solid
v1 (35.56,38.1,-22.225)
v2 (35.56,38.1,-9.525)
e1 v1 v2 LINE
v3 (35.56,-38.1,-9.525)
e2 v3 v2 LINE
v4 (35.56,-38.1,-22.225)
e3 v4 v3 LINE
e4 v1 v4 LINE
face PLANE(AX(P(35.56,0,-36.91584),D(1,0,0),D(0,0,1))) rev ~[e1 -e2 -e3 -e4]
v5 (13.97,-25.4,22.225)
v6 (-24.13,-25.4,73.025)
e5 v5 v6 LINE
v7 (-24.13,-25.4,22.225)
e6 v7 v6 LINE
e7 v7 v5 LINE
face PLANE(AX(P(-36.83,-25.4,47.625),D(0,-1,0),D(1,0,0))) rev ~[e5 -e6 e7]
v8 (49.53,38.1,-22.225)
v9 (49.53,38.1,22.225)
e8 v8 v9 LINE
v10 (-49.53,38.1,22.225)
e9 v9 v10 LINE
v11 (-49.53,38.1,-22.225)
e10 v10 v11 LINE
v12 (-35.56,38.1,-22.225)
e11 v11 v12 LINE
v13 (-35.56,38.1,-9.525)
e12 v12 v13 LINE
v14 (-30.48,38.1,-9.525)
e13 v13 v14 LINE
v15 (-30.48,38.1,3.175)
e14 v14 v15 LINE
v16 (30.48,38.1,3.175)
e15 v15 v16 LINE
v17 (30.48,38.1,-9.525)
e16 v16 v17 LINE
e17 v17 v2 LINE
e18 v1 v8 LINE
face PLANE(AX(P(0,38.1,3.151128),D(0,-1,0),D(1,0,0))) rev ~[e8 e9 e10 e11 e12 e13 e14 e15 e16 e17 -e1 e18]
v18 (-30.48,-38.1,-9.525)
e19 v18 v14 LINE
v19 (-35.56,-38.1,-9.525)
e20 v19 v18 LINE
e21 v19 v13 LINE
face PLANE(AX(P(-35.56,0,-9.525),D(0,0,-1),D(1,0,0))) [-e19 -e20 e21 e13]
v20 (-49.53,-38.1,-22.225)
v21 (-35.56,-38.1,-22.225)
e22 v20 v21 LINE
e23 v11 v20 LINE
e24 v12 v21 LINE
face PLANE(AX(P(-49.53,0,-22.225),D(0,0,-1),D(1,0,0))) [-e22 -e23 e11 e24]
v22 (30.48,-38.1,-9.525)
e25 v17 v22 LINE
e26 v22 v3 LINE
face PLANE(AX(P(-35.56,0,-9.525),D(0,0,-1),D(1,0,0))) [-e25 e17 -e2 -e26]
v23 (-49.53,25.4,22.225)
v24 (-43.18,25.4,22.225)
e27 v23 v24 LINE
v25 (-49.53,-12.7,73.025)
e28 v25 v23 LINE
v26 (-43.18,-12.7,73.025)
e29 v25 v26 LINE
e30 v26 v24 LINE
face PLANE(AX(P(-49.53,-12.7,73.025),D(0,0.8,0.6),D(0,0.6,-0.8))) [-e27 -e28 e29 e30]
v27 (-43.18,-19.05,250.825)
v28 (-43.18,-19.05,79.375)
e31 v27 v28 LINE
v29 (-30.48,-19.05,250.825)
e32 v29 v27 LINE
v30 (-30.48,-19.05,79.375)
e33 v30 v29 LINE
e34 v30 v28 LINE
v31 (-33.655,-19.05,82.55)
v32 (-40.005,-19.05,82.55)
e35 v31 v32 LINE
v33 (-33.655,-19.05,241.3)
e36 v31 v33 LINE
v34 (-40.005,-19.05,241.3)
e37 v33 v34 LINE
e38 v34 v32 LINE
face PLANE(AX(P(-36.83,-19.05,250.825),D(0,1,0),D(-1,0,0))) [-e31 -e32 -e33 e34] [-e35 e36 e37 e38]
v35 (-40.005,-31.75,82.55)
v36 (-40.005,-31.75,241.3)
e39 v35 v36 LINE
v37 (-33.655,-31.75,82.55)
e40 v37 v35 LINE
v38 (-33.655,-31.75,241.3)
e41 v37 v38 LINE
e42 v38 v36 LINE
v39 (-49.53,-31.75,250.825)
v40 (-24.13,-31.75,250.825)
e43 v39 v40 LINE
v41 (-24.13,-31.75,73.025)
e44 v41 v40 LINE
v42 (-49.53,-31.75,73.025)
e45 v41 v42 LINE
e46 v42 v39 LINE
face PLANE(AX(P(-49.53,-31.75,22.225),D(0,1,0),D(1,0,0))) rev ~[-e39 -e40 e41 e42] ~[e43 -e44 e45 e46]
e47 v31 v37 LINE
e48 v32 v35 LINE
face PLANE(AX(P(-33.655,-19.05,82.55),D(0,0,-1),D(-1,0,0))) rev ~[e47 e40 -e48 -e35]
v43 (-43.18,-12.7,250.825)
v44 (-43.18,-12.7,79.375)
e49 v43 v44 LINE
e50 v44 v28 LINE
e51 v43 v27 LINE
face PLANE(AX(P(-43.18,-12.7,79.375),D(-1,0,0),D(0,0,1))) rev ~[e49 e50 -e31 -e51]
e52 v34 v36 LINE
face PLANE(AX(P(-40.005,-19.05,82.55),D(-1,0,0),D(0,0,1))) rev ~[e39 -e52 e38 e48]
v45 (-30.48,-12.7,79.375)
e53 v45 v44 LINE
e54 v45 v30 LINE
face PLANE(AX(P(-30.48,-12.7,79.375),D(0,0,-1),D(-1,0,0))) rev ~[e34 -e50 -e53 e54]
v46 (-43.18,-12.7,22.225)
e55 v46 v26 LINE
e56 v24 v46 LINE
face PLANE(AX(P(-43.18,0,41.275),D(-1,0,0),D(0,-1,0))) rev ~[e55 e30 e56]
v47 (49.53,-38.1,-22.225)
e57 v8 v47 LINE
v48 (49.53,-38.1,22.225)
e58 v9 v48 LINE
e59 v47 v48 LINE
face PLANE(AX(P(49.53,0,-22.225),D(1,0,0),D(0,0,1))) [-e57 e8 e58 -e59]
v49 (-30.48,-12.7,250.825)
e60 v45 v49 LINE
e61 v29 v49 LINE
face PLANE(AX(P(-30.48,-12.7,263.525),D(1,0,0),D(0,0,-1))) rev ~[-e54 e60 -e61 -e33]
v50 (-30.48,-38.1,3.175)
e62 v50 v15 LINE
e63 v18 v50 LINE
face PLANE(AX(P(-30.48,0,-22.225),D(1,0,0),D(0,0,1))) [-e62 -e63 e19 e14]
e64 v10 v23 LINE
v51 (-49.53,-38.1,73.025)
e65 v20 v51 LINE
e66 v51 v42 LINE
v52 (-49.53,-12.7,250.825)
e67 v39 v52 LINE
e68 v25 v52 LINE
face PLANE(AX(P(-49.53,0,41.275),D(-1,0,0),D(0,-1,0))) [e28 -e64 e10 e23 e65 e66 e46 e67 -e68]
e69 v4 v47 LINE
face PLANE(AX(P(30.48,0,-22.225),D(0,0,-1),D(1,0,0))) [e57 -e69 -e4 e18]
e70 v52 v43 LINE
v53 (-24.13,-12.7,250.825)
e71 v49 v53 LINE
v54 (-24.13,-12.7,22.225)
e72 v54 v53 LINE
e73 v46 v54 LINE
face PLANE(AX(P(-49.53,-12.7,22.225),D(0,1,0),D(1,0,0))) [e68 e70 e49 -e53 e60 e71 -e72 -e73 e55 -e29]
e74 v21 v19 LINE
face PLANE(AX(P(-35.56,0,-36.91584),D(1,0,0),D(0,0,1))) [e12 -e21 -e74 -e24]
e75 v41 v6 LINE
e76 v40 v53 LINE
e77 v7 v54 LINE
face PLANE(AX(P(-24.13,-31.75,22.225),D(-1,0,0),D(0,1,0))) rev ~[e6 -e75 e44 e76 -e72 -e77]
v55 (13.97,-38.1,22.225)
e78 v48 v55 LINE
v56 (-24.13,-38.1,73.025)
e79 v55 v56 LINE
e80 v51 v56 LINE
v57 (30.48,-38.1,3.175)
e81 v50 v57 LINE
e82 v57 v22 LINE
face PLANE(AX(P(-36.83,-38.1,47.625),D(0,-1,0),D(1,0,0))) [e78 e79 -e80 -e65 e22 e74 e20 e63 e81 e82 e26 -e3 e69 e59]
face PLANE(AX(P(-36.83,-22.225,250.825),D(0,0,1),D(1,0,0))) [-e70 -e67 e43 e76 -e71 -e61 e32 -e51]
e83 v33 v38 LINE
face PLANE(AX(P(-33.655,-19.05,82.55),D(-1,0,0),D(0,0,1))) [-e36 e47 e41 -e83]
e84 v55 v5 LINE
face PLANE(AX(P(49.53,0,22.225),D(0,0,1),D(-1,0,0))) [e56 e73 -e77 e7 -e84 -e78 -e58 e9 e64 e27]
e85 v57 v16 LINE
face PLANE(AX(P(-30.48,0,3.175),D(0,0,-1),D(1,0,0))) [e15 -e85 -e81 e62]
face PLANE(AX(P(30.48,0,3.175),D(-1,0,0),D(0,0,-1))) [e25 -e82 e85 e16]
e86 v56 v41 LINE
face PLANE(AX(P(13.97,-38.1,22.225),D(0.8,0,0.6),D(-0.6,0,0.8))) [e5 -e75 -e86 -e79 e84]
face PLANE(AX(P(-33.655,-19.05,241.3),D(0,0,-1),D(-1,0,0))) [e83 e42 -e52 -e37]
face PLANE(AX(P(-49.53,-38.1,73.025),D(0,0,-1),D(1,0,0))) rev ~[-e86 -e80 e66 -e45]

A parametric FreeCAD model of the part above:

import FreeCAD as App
import Part
import Sketcher
from FreeCAD import Vector
Q = App.Units.Quantity

doc = App.newDocument("Part")
body = doc.addObject("PartDesign::Body", "Body")

sketch1 = body.newObject("Sketcher::SketchObject", "Sketch")
sketch1.AttachmentSupport = (doc.getObject("XZ_Plane"), [""])
sketch1.MapMode = "FlatFace"
sketch1.addGeometry(Part.LineSegment(Vector(30, -22, 0), Vector(50, -22, 0)), False)
sketch1.addGeometry(Part.LineSegment(Vector(50, -22, 0), Vector(50, 22, 0)), False)
sketch1.addGeometry(Part.LineSegment(Vector(50, 22, 0), Vector(-50, 22, 0)), False)
sketch1.addGeometry(Part.LineSegment(Vector(-50, 22, 0), Vector(-50, -22, 0)), False)
sketch1.addGeometry(Part.LineSegment(Vector(-50, -22, 0), Vector(-30, -22, 0)), False)
sketch1.addGeometry(Part.LineSegment(Vector(-30, -22, 0), Vector(-30, 3, 0)), False)
sketch1.addGeometry(Part.LineSegment(Vector(-30, 3, 0), Vector(30, 3, 0)), False)
sketch1.addGeometry(Part.LineSegment(Vector(30, 3, 0), Vector(30, -22, 0)), False)
sketch1.addConstraint(Sketcher.Constraint("Coincident", 0, 2, 1, 1))
sketch1.addConstraint(Sketcher.Constraint("Coincident", 1, 2, 2, 1))
sketch1.addConstraint(Sketcher.Constraint("Coincident", 2, 2, 3, 1))
sketch1.addConstraint(Sketcher.Constraint("Coincident", 3, 2, 4, 1))
sketch1.addConstraint(Sketcher.Constraint("Coincident", 4, 2, 5, 1))
sketch1.addConstraint(Sketcher.Constraint("Coincident", 5, 2, 6, 1))
sketch1.addConstraint(Sketcher.Constraint("Coincident", 6, 2, 7, 1))
sketch1.addConstraint(Sketcher.Constraint("Coincident", 7, 2, 0, 1))
sketch1.addConstraint(Sketcher.Constraint("Horizontal", 0))
sketch1.addConstraint(Sketcher.Constraint("Vertical", 1))
sketch1.addConstraint(Sketcher.Constraint("Horizontal", 2))
sketch1.addConstraint(Sketcher.Constraint("Vertical", 3))
sketch1.addConstraint(Sketcher.Constraint("Horizontal", 4))
sketch1.addConstraint(Sketcher.Constraint("Vertical", 5))
sketch1.addConstraint(Sketcher.Constraint("Horizontal", 6))
sketch1.addConstraint(Sketcher.Constraint("Vertical", 7))
sketch1.addConstraint(Sketcher.Constraint("Symmetric", 0, 2, 2, 2, -1, 1))
sketch1.addConstraint(Sketcher.Constraint("Symmetric", 4, 2, 7, 2, -2))
sketch1.addConstraint(Sketcher.Constraint("DistanceY", 5, 1, 5, 2, Q("1 in")))
sketch1.addConstraint(Sketcher.Constraint("DistanceX", 2, 2, 2, 1, Q("3.9 in")))
sketch1.addConstraint(Sketcher.Constraint("DistanceX", 6, 1, 6, 2, Q("2.4 in")))
sketch1.addConstraint(Sketcher.Constraint("DistanceY", 1, 1, 1, 2, Q("1.75 in")))
pad1 = body.newObject("PartDesign::Pad", "Pad")
pad1.Profile = sketch1
pad1.Length = Q("3 in")
pad1.Midplane = True

sketch2 = body.newObject("Sketcher::SketchObject", "Sketch001")
sketch2.AttachmentSupport = (doc.getObject("XZ_Plane"), [""])
sketch2.MapMode = "FlatFace"
sketch2.addGeometry(Part.LineSegment(Vector(-36, -10, 0), Vector(-36, -37, 0)), False)
sketch2.addGeometry(Part.LineSegment(Vector(-36, -37, 0), Vector(36, -37, 0)), False)
sketch2.addGeometry(Part.LineSegment(Vector(36, -37, 0), Vector(36, -10, 0)), False)
sketch2.addGeometry(Part.LineSegment(Vector(36, -10, 0), Vector(-36, -10, 0)), False)
sketch2.addConstraint(Sketcher.Constraint("Coincident", 0, 2, 1, 1))
sketch2.addConstraint(Sketcher.Constraint("Coincident", 1, 2, 2, 1))
sketch2.addConstraint(Sketcher.Constraint("Coincident", 2, 2, 3, 1))
sketch2.addConstraint(Sketcher.Constraint("Coincident", 3, 2, 0, 1))
sketch2.addConstraint(Sketcher.Constraint("Vertical", 0))
sketch2.addConstraint(Sketcher.Constraint("Horizontal", 1))
sketch2.addConstraint(Sketcher.Constraint("Vertical", 2))
sketch2.addConstraint(Sketcher.Constraint("Horizontal", 3))
sketch2.addConstraint(Sketcher.Constraint("DistanceX", 1, 1, 1, 2, Q("2.8 in")))
sketch2.addConstraint(Sketcher.Constraint("DistanceX", 0, 2, -1, 1, Q("1.4 in")))
sketch2.addConstraint(Sketcher.Constraint("DistanceY", 2, 2, -1, 1, Q("0.375 in")))
sketch2.addConstraint(Sketcher.Constraint("DistanceY", 0, 2, 0, 1, 27.39084))
pocket1 = body.newObject("PartDesign::Pocket", "Pocket")
pocket1.Profile = sketch2
pocket1.Length = Q("4 in")
pocket1.Midplane = True

sketch3 = body.newObject("Sketcher::SketchObject", "Sketch002")
sketch3.AttachmentSupport = (doc.getObject("XY_Plane"), [""])
sketch3.MapMode = "FlatFace"
sketch3.AttachmentOffset = App.Placement(Vector(0, 0, 0.875 * 25.4), App.Rotation())
sketch3.addGeometry(Part.LineSegment(Vector(-50, -13, 0), Vector(-50, -32, 0)), False)
sketch3.addGeometry(Part.LineSegment(Vector(-50, -32, 0), Vector(-24, -32, 0)), False)
sketch3.addGeometry(Part.LineSegment(Vector(-24, -32, 0), Vector(-24, -13, 0)), False)
sketch3.addGeometry(Part.LineSegment(Vector(-24, -13, 0), Vector(-50, -13, 0)), False)
sketch3.addConstraint(Sketcher.Constraint("Coincident", 0, 2, 1, 1))
sketch3.addConstraint(Sketcher.Constraint("Coincident", 1, 2, 2, 1))
sketch3.addConstraint(Sketcher.Constraint("Coincident", 2, 2, 3, 1))
sketch3.addConstraint(Sketcher.Constraint("Coincident", 3, 2, 0, 1))
sketch3.addConstraint(Sketcher.Constraint("Vertical", 0))
sketch3.addConstraint(Sketcher.Constraint("Horizontal", 1))
sketch3.addConstraint(Sketcher.Constraint("Vertical", 2))
sketch3.addConstraint(Sketcher.Constraint("Horizontal", 3))
sketch3.addConstraint(Sketcher.Constraint("DistanceX", 1, 1, 1, 2, Q("1 in")))
sketch3.addConstraint(Sketcher.Constraint("DistanceY", 0, 2, 0, 1, Q("0.75 in")))
sketch3.addConstraint(Sketcher.Constraint("DistanceY", 2, 2, -1, 1, Q("0.5 in")))
sketch3.addConstraint(Sketcher.Constraint("DistanceX", 0, 2, -1, 1, Q("1.95 in")))
pad2 = body.newObject("PartDesign::Pad", "Pad001")
pad2.Profile = sketch3
pad2.Length = Q("9 in")

sketch4 = body.newObject("Sketcher::SketchObject", "Sketch003")
sketch4.AttachmentSupport = (doc.getObject("XZ_Plane"), [""])
sketch4.MapMode = "FlatFace"
sketch4.AttachmentOffset = App.Placement(Vector(0, 0, 1.5 * 25.4), App.Rotation())
sketch4.addGeometry(Part.LineSegment(Vector(-50, 73, 0), Vector(-50, 22, 0)), False)
sketch4.addGeometry(Part.LineSegment(Vector(-50, 22, 0), Vector(14, 22, 0)), False)
sketch4.addGeometry(Part.LineSegment(Vector(14, 22, 0), Vector(-24, 73, 0)), False)
sketch4.addGeometry(Part.LineSegment(Vector(-24, 73, 0), Vector(-50, 73, 0)), False)
sketch4.addConstraint(Sketcher.Constraint("Coincident", 0, 2, 1, 1))
sketch4.addConstraint(Sketcher.Constraint("Coincident", 1, 2, 2, 1))
sketch4.addConstraint(Sketcher.Constraint("Coincident", 2, 2, 3, 1))
sketch4.addConstraint(Sketcher.Constraint("Coincident", 3, 2, 0, 1))
sketch4.addConstraint(Sketcher.Constraint("Vertical", 0))
sketch4.addConstraint(Sketcher.Constraint("Horizontal", 1))
sketch4.addConstraint(Sketcher.Constraint("Horizontal", 3))
sketch4.addConstraint(Sketcher.Constraint("DistanceX", 3, 2, 3, 1, Q("1 in")))
sketch4.addConstraint(Sketcher.Constraint("DistanceY", 0, 2, 0, 1, Q("2 in")))
sketch4.addConstraint(Sketcher.Constraint("DistanceX", 1, 1, 1, 2, Q("2.5 in")))
sketch4.addConstraint(Sketcher.Constraint("DistanceX", 0, 2, -1, 1, Q("1.95 in")))
sketch4.addConstraint(Sketcher.Constraint("DistanceY", -1, 1, 0, 2, Q("0.875 in")))
pad3 = body.newObject("PartDesign::Pad", "Pad002")
pad3.Profile = sketch4
pad3.Length = Q("0.5 in")
pad3.Reversed = True

sketch5 = body.newObject("Sketcher::SketchObject", "Sketch004")
sketch5.AttachmentSupport = (doc.getObject("YZ_Plane"), [""])
sketch5.MapMode = "FlatFace"
sketch5.AttachmentOffset = App.Placement(Vector(0, 0, -1.95 * 25.4), App.Rotation())
sketch5.addGeometry(Part.LineSegment(Vector(25, 22, 0), Vector(-13, 22, 0)), False)
sketch5.addGeometry(Part.LineSegment(Vector(-13, 22, 0), Vector(-13, 73, 0)), False)
sketch5.addGeometry(Part.LineSegment(Vector(-13, 73, 0), Vector(25, 22, 0)), False)
sketch5.addConstraint(Sketcher.Constraint("Coincident", 0, 2, 1, 1))
sketch5.addConstraint(Sketcher.Constraint("Coincident", 1, 2, 2, 1))
sketch5.addConstraint(Sketcher.Constraint("Coincident", 2, 2, 0, 1))
sketch5.addConstraint(Sketcher.Constraint("Horizontal", 0))
sketch5.addConstraint(Sketcher.Constraint("Vertical", 1))
sketch5.addConstraint(Sketcher.Constraint("DistanceY", 1, 1, 1, 2, Q("2 in")))
sketch5.addConstraint(Sketcher.Constraint("DistanceX", 0, 2, 0, 1, Q("1.5 in")))
sketch5.addConstraint(Sketcher.Constraint("DistanceX", -1, 1, 2, 2, Q("1 in")))
sketch5.addConstraint(Sketcher.Constraint("DistanceY", -1, 1, 0, 2, Q("0.875 in")))
pad4 = body.newObject("PartDesign::Pad", "Pad003")
pad4.Profile = sketch5
pad4.Length = Q("0.25 in")

sketch6 = body.newObject("Sketcher::SketchObject", "Sketch005")
sketch6.AttachmentSupport = (doc.getObject("XZ_Plane"), [""])
sketch6.MapMode = "FlatFace"
sketch6.AttachmentOffset = App.Placement(Vector(0, 0, 0.5 * 25.4), App.Rotation())
sketch6.addGeometry(Part.LineSegment(Vector(-30, 244, 0), Vector(-30, 79, 0)), False)
sketch6.addGeometry(Part.LineSegment(Vector(-30, 79, 0), Vector(-43, 79, 0)), False)
sketch6.addGeometry(Part.LineSegment(Vector(-43, 79, 0), Vector(-43, 244, 0)), False)
sketch6.addGeometry(Part.LineSegment(Vector(-43, 244, 0), Vector(-30, 244, 0)), False)
sketch6.addConstraint(Sketcher.Constraint("Coincident", 0, 2, 1, 1))
sketch6.addConstraint(Sketcher.Constraint("Coincident", 1, 2, 2, 1))
sketch6.addConstraint(Sketcher.Constraint("Coincident", 2, 2, 3, 1))
sketch6.addConstraint(Sketcher.Constraint("Coincident", 3, 2, 0, 1))
sketch6.addConstraint(Sketcher.Constraint("Vertical", 0))
sketch6.addConstraint(Sketcher.Constraint("Horizontal", 1))
sketch6.addConstraint(Sketcher.Constraint("Vertical", 2))
sketch6.addConstraint(Sketcher.Constraint("Horizontal", 3))
sketch6.addConstraint(Sketcher.Constraint("DistanceX", 1, 2, 1, 1, Q("0.5 in")))
sketch6.addConstraint(Sketcher.Constraint("DistanceY", 0, 2, 0, 1, Q("6.5 in")))
sketch6.addConstraint(Sketcher.Constraint("DistanceX", 0, 2, -1, 1, Q("1.2 in")))
sketch6.addConstraint(Sketcher.Constraint("DistanceY", -1, 1, 0, 2, Q("3.125 in")))
pocket2 = body.newObject("PartDesign::Pocket", "Pocket001")
pocket2.Profile = sketch6
pocket2.Length = Q("0.25 in")
pocket2.Reversed = True

sketch7 = body.newObject("Sketcher::SketchObject", "Sketch006")
sketch7.AttachmentSupport = (doc.getObject("XZ_Plane"), [""])
sketch7.MapMode = "FlatFace"
sketch7.AttachmentOffset = App.Placement(Vector(0, 0, 0.75 * 25.4), App.Rotation())
sketch7.addGeometry(Part.LineSegment(Vector(-34, 241, 0), Vector(-34, 83, 0)), False)
sketch7.addGeometry(Part.LineSegment(Vector(-34, 83, 0), Vector(-40, 83, 0)), False)
sketch7.addGeometry(Part.LineSegment(Vector(-40, 83, 0), Vector(-40, 241, 0)), False)
sketch7.addGeometry(Part.LineSegment(Vector(-40, 241, 0), Vector(-34, 241, 0)), False)
sketch7.addConstraint(Sketcher.Constraint("Coincident", 0, 2, 1, 1))
sketch7.addConstraint(Sketcher.Constraint("Coincident", 1, 2, 2, 1))
sketch7.addConstraint(Sketcher.Constraint("Coincident", 2, 2, 3, 1))
sketch7.addConstraint(Sketcher.Constraint("Coincident", 3, 2, 0, 1))
sketch7.addConstraint(Sketcher.Constraint("Vertical", 0))
sketch7.addConstraint(Sketcher.Constraint("Horizontal", 1))
sketch7.addConstraint(Sketcher.Constraint("Vertical", 2))
sketch7.addConstraint(Sketcher.Constraint("Horizontal", 3))
sketch7.addConstraint(Sketcher.Constraint("DistanceX", 1, 2, 1, 1, Q("0.25 in")))
sketch7.addConstraint(Sketcher.Constraint("DistanceY", 0, 2, 0, 1, Q("6.25 in")))
sketch7.addConstraint(Sketcher.Constraint("DistanceY", -1, 1, 2, 2, Q("9.5 in")))
sketch7.addConstraint(Sketcher.Constraint("DistanceX", 0, 2, -1, 1, Q("1.325 in")))
pocket3 = body.newObject("PartDesign::Pocket", "Pocket002")
pocket3.Profile = sketch7
pocket3.Length = Q("1 in")
pocket3.Reversed = True

sketch8 = body.newObject("Sketcher::SketchObject", "Sketch007")
sketch8.AttachmentSupport = (doc.getObject("XZ_Plane"), [""])
sketch8.MapMode = "FlatFace"
sketch8.AttachmentOffset = App.Placement(Vector(0, 0, 0.5 * 25.4), App.Rotation())
sketch8.addGeometry(Part.LineSegment(Vector(-30, 238, 0), Vector(-43, 238, 0)), False)
sketch8.addGeometry(Part.LineSegment(Vector(-43, 238, 0), Vector(-43, 264, 0)), False)
sketch8.addGeometry(Part.LineSegment(Vector(-43, 264, 0), Vector(-30, 264, 0)), False)
sketch8.addGeometry(Part.LineSegment(Vector(-30, 264, 0), Vector(-30, 238, 0)), False)
sketch8.addConstraint(Sketcher.Constraint("Coincident", 0, 2, 1, 1))
sketch8.addConstraint(Sketcher.Constraint("Coincident", 1, 2, 2, 1))
sketch8.addConstraint(Sketcher.Constraint("Coincident", 2, 2, 3, 1))
sketch8.addConstraint(Sketcher.Constraint("Coincident", 3, 2, 0, 1))
sketch8.addConstraint(Sketcher.Constraint("Horizontal", 0))
sketch8.addConstraint(Sketcher.Constraint("Vertical", 1))
sketch8.addConstraint(Sketcher.Constraint("Horizontal", 2))
sketch8.addConstraint(Sketcher.Constraint("Vertical", 3))
sketch8.addConstraint(Sketcher.Constraint("DistanceY", 1, 1, 1, 2, Q("1 in")))
sketch8.addConstraint(Sketcher.Constraint("DistanceX", 0, 2, 0, 1, Q("0.5 in")))
sketch8.addConstraint(Sketcher.Constraint("DistanceX", 0, 2, -1, 1, Q("1.7 in")))
sketch8.addConstraint(Sketcher.Constraint("DistanceY", -1, 1, 0, 2, Q("9.375 in")))
pocket4 = body.newObject("PartDesign::Pocket", "Pocket003")
pocket4.Profile = sketch8
pocket4.Length = Q("0.25 in")
pocket4.Reversed = True

doc.recompute()
